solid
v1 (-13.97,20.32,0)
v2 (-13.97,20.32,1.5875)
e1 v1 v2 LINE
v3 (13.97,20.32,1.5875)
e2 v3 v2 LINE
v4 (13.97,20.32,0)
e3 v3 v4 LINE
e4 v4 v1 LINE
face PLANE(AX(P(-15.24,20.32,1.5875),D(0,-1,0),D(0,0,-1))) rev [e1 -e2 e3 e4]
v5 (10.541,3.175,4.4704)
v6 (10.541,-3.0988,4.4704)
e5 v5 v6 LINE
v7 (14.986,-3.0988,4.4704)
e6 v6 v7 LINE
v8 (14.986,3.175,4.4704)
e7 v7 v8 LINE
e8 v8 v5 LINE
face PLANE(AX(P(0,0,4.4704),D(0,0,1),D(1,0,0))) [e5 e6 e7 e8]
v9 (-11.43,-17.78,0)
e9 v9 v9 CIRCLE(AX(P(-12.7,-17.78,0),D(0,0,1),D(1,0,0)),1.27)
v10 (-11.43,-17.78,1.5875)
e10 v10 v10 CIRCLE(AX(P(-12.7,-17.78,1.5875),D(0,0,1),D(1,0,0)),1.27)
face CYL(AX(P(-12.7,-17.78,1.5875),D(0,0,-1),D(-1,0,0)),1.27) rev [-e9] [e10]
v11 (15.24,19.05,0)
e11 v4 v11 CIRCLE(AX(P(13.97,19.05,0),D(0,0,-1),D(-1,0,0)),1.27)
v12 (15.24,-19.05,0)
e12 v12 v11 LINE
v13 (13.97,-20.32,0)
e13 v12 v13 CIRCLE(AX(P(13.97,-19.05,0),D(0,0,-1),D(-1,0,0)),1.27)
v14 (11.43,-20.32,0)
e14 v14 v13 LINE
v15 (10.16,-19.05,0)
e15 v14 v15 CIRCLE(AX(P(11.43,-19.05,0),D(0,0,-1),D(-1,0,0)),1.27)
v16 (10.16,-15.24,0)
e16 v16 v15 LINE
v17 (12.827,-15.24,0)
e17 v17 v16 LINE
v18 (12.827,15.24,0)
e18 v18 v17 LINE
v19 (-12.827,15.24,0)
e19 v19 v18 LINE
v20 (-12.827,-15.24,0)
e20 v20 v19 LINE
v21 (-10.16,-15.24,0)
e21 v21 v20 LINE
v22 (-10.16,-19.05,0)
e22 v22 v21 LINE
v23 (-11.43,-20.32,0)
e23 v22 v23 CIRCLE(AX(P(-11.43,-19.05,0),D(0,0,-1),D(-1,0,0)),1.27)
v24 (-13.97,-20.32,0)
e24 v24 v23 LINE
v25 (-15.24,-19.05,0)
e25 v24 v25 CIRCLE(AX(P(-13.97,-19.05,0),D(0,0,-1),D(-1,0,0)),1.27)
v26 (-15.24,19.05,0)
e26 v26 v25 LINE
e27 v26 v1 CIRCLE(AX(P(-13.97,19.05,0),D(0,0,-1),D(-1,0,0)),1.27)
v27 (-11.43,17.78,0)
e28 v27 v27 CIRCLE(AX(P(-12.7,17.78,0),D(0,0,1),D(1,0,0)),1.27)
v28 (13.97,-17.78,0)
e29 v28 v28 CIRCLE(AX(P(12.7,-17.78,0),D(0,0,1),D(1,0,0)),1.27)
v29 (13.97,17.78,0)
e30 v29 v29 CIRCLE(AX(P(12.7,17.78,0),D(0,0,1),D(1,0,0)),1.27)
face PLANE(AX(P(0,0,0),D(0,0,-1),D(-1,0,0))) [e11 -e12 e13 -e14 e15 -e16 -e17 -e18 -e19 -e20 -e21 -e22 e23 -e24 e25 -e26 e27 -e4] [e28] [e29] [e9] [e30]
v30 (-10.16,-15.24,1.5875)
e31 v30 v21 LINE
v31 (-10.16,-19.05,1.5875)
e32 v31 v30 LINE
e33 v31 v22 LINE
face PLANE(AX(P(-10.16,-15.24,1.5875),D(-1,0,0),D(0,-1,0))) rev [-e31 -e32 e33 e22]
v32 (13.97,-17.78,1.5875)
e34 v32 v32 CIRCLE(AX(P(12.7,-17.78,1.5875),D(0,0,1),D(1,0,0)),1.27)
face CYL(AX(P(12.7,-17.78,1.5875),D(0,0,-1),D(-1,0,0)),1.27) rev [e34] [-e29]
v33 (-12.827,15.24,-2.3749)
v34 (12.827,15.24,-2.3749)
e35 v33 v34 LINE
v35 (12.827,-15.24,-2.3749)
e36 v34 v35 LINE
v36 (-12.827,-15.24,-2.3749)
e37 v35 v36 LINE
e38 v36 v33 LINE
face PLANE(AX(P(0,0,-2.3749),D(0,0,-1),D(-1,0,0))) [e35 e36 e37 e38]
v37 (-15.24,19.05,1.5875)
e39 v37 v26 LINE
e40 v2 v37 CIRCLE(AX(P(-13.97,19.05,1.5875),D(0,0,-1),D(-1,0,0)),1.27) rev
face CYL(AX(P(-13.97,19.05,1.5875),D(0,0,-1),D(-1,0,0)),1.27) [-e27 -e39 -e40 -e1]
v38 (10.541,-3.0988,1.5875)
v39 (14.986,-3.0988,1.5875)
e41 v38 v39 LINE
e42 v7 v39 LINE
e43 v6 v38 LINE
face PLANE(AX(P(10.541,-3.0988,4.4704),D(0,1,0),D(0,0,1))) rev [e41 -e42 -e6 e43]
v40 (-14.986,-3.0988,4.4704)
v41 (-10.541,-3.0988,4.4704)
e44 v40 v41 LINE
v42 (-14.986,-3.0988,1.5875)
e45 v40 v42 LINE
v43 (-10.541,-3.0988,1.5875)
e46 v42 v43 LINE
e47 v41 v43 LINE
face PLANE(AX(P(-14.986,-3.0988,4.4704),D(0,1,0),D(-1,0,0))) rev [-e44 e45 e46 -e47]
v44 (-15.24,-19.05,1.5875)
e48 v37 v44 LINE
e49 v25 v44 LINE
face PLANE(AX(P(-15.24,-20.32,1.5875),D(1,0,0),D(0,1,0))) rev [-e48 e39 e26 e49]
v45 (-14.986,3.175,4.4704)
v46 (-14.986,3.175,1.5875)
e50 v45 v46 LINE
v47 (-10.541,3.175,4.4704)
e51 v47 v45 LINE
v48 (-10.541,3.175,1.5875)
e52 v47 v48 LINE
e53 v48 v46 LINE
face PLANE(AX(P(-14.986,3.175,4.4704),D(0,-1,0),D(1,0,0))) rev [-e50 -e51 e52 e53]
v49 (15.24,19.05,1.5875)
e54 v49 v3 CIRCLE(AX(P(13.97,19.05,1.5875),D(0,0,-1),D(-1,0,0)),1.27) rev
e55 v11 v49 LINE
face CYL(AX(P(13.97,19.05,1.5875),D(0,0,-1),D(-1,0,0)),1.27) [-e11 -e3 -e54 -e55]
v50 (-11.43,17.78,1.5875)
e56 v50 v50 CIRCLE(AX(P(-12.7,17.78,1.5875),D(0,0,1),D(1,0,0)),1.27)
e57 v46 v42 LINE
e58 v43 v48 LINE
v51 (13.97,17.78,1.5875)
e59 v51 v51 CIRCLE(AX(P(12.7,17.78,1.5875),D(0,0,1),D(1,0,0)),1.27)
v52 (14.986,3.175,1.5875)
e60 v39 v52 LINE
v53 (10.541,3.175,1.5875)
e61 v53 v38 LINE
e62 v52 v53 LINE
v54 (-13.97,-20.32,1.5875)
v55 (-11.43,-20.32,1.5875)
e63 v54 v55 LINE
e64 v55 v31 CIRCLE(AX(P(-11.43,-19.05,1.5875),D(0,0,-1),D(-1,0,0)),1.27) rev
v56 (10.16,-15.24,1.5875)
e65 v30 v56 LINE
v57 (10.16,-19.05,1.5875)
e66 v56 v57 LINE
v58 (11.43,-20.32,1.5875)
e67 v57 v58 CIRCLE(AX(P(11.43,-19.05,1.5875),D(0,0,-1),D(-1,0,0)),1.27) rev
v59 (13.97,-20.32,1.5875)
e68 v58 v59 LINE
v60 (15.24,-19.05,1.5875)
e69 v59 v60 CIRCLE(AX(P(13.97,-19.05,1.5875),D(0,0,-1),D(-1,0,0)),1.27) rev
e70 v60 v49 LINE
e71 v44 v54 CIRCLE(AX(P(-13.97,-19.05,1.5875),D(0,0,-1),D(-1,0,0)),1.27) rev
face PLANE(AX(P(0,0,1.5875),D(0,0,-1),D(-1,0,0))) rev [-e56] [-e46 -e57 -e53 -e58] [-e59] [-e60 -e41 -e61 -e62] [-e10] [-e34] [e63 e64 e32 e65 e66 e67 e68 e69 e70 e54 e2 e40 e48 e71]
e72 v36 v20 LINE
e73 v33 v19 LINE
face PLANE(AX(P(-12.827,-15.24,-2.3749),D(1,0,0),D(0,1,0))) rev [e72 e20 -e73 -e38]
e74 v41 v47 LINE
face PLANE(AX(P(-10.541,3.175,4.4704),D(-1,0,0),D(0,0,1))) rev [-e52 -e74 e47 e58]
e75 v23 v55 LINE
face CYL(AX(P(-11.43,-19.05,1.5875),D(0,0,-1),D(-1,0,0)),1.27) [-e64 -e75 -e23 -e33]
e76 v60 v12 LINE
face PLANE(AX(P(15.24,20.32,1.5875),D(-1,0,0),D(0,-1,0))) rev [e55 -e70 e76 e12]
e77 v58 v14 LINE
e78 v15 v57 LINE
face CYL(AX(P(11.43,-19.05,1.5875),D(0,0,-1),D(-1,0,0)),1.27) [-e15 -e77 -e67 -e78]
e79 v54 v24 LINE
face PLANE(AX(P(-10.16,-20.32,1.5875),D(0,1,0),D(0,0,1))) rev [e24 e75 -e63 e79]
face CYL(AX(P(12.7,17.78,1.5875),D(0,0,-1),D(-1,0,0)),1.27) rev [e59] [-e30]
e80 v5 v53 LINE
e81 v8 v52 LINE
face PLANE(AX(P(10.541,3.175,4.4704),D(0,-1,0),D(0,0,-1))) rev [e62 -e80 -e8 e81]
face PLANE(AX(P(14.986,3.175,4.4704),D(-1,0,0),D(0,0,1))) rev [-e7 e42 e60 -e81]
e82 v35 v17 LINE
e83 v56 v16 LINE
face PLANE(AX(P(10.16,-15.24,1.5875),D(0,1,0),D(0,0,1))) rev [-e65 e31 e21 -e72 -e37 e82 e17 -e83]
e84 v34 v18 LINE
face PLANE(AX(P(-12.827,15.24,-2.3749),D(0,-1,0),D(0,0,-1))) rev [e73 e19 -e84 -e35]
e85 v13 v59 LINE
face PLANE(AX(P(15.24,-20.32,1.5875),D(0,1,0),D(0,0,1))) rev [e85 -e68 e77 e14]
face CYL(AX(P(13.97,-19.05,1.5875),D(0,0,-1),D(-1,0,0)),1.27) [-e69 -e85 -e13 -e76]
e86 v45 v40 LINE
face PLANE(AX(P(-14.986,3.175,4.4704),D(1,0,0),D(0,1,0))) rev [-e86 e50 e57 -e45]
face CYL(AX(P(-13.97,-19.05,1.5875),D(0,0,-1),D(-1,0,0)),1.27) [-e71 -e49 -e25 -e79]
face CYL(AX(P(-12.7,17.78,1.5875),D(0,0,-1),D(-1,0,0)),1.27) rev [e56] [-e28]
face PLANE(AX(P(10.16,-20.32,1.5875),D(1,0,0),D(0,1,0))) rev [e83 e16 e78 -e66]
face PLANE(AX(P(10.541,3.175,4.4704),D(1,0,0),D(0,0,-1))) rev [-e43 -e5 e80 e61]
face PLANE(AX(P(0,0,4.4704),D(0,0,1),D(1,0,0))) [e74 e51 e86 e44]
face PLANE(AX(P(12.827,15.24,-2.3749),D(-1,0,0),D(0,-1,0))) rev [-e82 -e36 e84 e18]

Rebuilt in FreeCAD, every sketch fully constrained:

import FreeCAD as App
import Part
import Sketcher

V = App.Vector
Q = App.Units.Quantity


def edges_at(feature, points):
    """Names of the edges that pass closest to the given points."""
    edges = feature.Shape.Edges
    near = lambda p: min(range(len(edges)), key=lambda i: edges[i].distToShape(Part.Vertex(*p))[0])
    return sorted({f"Edge{near(p) + 1}" for p in points})

doc = App.newDocument("Part")
body = doc.addObject("PartDesign::Body", "Body")

sketch1 = body.newObject("Sketcher::SketchObject", "Sketch")
sketch1.AttachmentSupport = (doc.getObject("XY_Plane"), [""])
sketch1.MapMode = "FlatFace"
sketch1.addGeometry([
    Part.LineSegment(V(15.2, 20.3, 0), V(-15.2, 20.3, 0)),
    Part.LineSegment(V(-15.2, 20.3, 0), V(-15.2, -20.3, 0)),
    Part.LineSegment(V(-15.2, -20.3, 0), V(-10.2, -20.3, 0)),
    Part.LineSegment(V(-10.2, -20.3, 0), V(-10.2, -15.2, 0)),
    Part.LineSegment(V(-10.2, -15.2, 0), V(10.2, -15.2, 0)),
    Part.LineSegment(V(10.2, -15.2, 0), V(10.2, -20.3, 0)),
    Part.LineSegment(V(10.2, -20.3, 0), V(15.2, -20.3, 0)),
    Part.LineSegment(V(15.2, -20.3, 0), V(15.2, 20.3, 0)),
    Part.Circle(V(12.7, -17.8, 0), V(0, 0, 1), 1.3),
    Part.Circle(V(-12.7, -17.8, 0), V(0, 0, 1), 1.3),
    Part.Circle(V(12.7, 17.8, 0), V(0, 0, 1), 1.3),
    Part.Circle(V(-12.7, 17.8, 0), V(0, 0, 1), 1.3),
], False)
sketch1.addConstraint([
    Sketcher.Constraint("Coincident", 0, 2, 1, 1),
    Sketcher.Constraint("Coincident", 1, 2, 2, 1),
    Sketcher.Constraint("Coincident", 2, 2, 3, 1),
    Sketcher.Constraint("Coincident", 3, 2, 4, 1),
    Sketcher.Constraint("Coincident", 4, 2, 5, 1),
    Sketcher.Constraint("Coincident", 5, 2, 6, 1),
    Sketcher.Constraint("Coincident", 6, 2, 7, 1),
    Sketcher.Constraint("Coincident", 7, 2, 0, 1),
    Sketcher.Constraint("Horizontal", 0),
    Sketcher.Constraint("Vertical", 1),
    Sketcher.Constraint("Horizontal", 2),
    Sketcher.Constraint("Vertical", 3),
    Sketcher.Constraint("Horizontal", 4),
    Sketcher.Constraint("Vertical", 5),
    Sketcher.Constraint("Horizontal", 6),
    Sketcher.Constraint("Vertical", 7),
    Sketcher.Constraint("Equal", 8, 9),
    Sketcher.Constraint("Equal", 9, 10),
    Sketcher.Constraint("Equal", 10, 11),
    Sketcher.Constraint("Symmetric", 9, 3, 10, 3, -1, 1),
    Sketcher.Constraint("Symmetric", 8, 3, 11, 3, -1, 1),
    Sketcher.Constraint("Symmetric", 0, 2, 6, 2, -1, 1),
    Sketcher.Constraint("Symmetric", 8, 3, 9, 3, -2),
    Sketcher.Constraint("Symmetric", 2, 2, 5, 2, -2),
    Sketcher.Constraint("Equal", 6, 3),
    Sketcher.Constraint("Diameter", 8, Q("0.1 in")),
    Sketcher.Constraint("DistanceX", 0, 2, 0, 1, Q("1.2 in")),
    Sketcher.Constraint("DistanceX", 2, 1, 2, 2, Q("0.2 in")),
    Sketcher.Constraint("DistanceY", 1, 2, 1, 1, Q("1.6 in")),
    Sketcher.Constraint("DistanceX", 9, 3, 8, 3, Q("1 in")),
    Sketcher.Constraint("DistanceY", 8, 3, -1, 1, Q("0.7 in")),
])
pad1 = body.newObject("PartDesign::Pad", "Pad")
pad1.Profile = sketch1
pad1.Length = Q("0.0625 in")
doc.recompute()

fillet = body.newObject("PartDesign::Fillet", "Fillet")
fillet.Base = (pad1, edges_at(pad1, [
    (-15.24, 20.32, 0.794),
    (15.24, 20.32, 0.794),
    (15.24, -20.32, 0.794),
    (10.16, -20.32, 0.794),
    (-10.16, -20.32, 0.794),
    (-15.24, -20.32, 0.794),
]))
fillet.Radius = Q("0.05 in")

sketch2 = body.newObject("Sketcher::SketchObject", "Sketch001")
sketch2.AttachmentSupport = (doc.getObject("XY_Plane"), [""])
sketch2.MapMode = "FlatFace"
sketch2.addGeometry([
    Part.LineSegment(V(13, 15, 0), V(13, -15, 0)),
    Part.LineSegment(V(13, -15, 0), V(-13, -15, 0)),
    Part.LineSegment(V(-13, -15, 0), V(-13, 15, 0)),
    Part.LineSegment(V(-13, 15, 0), V(13, 15, 0)),
], False)
sketch2.addConstraint([
    Sketcher.Constraint("Coincident", 0, 2, 1, 1),
    Sketcher.Constraint("Coincident", 1, 2, 2, 1),
    Sketcher.Constraint("Coincident", 2, 2, 3, 1),
    Sketcher.Constraint("Coincident", 3, 2, 0, 1),
    Sketcher.Constraint("Vertical", 0),
    Sketcher.Constraint("Horizontal", 1),
    Sketcher.Constraint("Vertical", 2),
    Sketcher.Constraint("Horizontal", 3),
    Sketcher.Constraint("Symmetric", 0, 2, 2, 2, -1, 1),
    Sketcher.Constraint("DistanceY", 0, 2, 0, 1, Q("1.2 in")),
    Sketcher.Constraint("DistanceX", 1, 2, 1, 1, Q("1.01 in")),
])
pad2 = body.newObject("PartDesign::Pad", "Pad001")
pad2.Profile = sketch2
pad2.Length = Q("0.0935 in")
pad2.Reversed = True

sketch3 = body.newObject("Sketcher::SketchObject", "Sketch002")
sketch3.AttachmentSupport = (doc.getObject("XY_Plane"), [""])
sketch3.MapMode = "FlatFace"
sketch3.AttachmentOffset = App.Placement(V(0, 0, 0.0625 * 25.4), App.Rotation())
sketch3.addGeometry([
    Part.LineSegment(V(-15, 3.2, 0), V(-15, -3.1, 0)),
    Part.LineSegment(V(-15, -3.1, 0), V(-10.5, -3.1, 0)),
    Part.LineSegment(V(-10.5, -3.1, 0), V(-10.5, 3.2, 0)),
    Part.LineSegment(V(-10.5, 3.2, 0), V(-15, 3.2, 0)),
    Part.LineSegment(V(10.5, 3.2, 0), V(10.5, -3.1, 0)),
    Part.LineSegment(V(10.5, -3.1, 0), V(15, -3.1, 0)),
    Part.LineSegment(V(15, -3.1, 0), V(15, 3.2, 0)),
    Part.LineSegment(V(15, 3.2, 0), V(10.5, 3.2, 0)),
], False)
sketch3.addConstraint([
    Sketcher.Constraint("Coincident", 0, 2, 1, 1),
    Sketcher.Constraint("Coincident", 1, 2, 2, 1),
    Sketcher.Constraint("Coincident", 2, 2, 3, 1),
    Sketcher.Constraint("Coincident", 3, 2, 0, 1),
    Sketcher.Constraint("Coincident", 4, 2, 5, 1),
    Sketcher.Constraint("Coincident", 5, 2, 6, 1),
    Sketcher.Constraint("Coincident", 6, 2, 7, 1),
    Sketcher.Constraint("Coincident", 7, 2, 4, 1),
    Sketcher.Constraint("Vertical", 0),
    Sketcher.Constraint("Horizontal", 1),
    Sketcher.Constraint("Vertical", 2),
    Sketcher.Constraint("Horizontal", 3),
    Sketcher.Constraint("Vertical", 4),
    Sketcher.Constraint("Horizontal", 5),
    Sketcher.Constraint("Vertical", 6),
    Sketcher.Constraint("Horizontal", 7),
    Sketcher.Constraint("Symmetric", 1, 2, 4, 2, -2),
    Sketcher.Constraint("Symmetric", 3, 2, 6, 2, -2),
    Sketcher.Constraint("DistanceX", 1, 1, 1, 2, Q("0.175 in")),
    Sketcher.Constraint("DistanceY", 0, 2, 0, 1, Q("0.247 in")),
    Sketcher.Constraint("DistanceX", 0, 2, -1, 1, Q("0.59 in")),
    Sketcher.Constraint("DistanceY", 0, 2, -1, 1, Q("0.122 in")),
])
pad3 = body.newObject("PartDesign::Pad", "Pad002")
pad3.Profile = sketch3
pad3.Length = Q("0.1135 in")

doc.recompute()
